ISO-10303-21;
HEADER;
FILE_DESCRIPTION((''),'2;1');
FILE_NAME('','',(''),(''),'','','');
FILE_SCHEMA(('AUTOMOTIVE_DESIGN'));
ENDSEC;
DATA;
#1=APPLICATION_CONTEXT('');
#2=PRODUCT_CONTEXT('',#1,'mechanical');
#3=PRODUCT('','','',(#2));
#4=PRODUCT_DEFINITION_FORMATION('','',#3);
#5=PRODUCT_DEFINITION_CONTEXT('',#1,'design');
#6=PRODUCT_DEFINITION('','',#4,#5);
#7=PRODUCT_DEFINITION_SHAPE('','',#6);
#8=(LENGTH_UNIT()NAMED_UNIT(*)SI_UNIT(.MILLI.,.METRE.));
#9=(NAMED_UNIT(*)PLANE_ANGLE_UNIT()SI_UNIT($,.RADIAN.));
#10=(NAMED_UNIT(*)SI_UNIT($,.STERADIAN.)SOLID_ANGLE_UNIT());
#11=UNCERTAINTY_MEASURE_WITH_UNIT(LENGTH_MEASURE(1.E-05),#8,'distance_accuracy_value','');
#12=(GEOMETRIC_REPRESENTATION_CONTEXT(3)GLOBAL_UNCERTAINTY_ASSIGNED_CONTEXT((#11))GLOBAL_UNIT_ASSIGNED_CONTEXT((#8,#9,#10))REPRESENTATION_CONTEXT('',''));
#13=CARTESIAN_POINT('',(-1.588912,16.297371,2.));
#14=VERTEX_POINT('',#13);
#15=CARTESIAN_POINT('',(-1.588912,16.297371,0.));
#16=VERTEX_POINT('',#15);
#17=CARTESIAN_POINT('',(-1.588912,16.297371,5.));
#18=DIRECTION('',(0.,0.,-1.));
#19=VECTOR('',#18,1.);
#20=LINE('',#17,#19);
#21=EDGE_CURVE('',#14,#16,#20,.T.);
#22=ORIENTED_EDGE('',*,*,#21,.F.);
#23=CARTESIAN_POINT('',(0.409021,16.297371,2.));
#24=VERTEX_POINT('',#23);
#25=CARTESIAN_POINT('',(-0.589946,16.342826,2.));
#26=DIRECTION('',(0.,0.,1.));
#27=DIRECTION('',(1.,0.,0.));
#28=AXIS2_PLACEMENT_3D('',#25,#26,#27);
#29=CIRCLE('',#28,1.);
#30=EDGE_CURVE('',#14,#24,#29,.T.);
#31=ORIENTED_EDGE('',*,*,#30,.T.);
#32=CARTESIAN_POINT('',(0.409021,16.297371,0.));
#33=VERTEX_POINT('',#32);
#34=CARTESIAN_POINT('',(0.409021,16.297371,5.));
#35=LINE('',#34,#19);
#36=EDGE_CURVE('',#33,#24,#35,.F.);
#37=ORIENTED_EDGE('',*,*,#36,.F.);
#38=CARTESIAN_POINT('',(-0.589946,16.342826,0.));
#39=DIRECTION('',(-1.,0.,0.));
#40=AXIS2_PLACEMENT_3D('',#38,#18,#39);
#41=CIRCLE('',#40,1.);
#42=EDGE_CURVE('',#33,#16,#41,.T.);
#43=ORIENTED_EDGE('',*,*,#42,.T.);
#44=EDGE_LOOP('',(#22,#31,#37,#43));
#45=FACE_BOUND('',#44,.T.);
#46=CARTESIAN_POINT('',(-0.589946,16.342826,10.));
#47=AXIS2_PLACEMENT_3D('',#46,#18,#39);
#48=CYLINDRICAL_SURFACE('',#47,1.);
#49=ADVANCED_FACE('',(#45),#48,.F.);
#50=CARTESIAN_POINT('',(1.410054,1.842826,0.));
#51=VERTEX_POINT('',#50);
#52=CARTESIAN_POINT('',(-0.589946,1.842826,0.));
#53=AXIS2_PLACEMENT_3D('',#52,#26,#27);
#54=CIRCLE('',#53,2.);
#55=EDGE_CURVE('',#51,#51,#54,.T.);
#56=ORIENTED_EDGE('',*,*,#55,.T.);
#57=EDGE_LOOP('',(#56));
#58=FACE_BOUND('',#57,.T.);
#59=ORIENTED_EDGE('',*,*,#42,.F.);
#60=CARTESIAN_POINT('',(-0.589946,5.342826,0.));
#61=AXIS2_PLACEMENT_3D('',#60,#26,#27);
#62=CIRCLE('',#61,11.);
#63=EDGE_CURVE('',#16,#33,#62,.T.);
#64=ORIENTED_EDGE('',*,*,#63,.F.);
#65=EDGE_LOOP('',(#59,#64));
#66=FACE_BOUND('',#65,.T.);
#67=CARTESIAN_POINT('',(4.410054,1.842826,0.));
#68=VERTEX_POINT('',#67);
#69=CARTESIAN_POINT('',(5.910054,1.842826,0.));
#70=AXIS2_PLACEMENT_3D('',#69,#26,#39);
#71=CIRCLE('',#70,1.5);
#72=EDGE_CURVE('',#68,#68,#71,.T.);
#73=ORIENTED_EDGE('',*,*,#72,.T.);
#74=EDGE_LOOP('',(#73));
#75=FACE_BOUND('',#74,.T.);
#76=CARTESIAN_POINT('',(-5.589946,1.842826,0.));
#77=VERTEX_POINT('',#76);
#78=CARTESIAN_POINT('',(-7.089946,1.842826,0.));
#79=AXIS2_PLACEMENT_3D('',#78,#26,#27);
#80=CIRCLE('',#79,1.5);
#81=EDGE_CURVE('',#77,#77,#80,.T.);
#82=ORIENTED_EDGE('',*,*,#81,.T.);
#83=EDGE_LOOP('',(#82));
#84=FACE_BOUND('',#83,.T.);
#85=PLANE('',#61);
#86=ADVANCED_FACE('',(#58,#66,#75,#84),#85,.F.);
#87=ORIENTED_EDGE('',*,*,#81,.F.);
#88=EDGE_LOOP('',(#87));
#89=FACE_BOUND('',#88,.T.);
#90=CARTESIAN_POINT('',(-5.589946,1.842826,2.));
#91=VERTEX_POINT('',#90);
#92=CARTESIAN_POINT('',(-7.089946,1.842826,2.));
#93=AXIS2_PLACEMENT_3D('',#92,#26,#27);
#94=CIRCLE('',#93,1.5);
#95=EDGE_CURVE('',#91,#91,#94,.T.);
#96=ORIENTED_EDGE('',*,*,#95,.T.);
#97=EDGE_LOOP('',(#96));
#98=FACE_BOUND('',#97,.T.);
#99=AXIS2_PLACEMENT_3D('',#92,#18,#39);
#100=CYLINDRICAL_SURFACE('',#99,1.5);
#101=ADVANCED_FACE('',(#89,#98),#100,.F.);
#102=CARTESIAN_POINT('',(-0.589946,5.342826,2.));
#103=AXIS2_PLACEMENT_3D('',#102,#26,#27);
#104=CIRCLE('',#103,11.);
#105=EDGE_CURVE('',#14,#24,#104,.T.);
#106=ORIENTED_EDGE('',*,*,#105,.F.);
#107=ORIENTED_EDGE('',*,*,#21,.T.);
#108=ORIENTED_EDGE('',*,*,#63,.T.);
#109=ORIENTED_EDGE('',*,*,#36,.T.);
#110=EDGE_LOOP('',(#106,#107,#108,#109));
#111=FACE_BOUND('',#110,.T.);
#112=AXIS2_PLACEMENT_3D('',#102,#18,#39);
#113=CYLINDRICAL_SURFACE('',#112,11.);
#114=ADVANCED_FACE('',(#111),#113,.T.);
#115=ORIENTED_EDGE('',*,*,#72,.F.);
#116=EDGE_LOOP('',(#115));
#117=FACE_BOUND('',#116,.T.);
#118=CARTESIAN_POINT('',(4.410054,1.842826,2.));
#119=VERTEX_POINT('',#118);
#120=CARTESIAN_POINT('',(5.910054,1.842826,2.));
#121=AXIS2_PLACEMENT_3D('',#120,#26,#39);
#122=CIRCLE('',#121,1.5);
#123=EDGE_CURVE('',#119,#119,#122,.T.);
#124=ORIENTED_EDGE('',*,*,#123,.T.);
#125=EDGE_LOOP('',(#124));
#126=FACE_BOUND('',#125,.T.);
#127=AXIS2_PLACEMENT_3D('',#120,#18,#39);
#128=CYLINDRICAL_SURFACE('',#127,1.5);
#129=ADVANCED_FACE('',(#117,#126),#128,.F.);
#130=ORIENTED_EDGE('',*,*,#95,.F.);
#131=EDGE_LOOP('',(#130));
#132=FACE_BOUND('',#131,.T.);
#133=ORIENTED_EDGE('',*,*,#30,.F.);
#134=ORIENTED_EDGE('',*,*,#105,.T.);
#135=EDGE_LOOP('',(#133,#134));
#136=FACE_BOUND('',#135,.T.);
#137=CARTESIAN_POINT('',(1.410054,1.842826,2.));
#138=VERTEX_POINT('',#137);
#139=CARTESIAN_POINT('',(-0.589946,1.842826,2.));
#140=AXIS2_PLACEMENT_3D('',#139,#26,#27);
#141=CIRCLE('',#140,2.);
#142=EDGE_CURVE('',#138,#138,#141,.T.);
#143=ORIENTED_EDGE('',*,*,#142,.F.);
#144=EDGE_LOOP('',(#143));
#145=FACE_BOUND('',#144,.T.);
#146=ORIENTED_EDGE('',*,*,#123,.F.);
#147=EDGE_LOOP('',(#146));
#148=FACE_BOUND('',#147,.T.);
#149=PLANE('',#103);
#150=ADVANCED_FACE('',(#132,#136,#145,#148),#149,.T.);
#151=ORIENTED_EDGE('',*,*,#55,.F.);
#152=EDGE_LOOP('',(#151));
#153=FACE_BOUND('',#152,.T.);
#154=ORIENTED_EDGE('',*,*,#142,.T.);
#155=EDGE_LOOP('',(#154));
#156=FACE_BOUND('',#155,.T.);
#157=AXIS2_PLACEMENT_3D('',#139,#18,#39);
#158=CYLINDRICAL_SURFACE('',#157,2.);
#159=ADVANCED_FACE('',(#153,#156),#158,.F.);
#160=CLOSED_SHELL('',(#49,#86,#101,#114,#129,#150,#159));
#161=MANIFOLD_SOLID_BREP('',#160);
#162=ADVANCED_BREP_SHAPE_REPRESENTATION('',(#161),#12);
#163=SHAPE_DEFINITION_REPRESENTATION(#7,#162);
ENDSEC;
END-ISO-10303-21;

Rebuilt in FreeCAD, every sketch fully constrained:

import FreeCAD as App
import Part
import Sketcher

V = App.Vector
Q = App.Units.Quantity

doc = App.newDocument("Part")
body = doc.addObject("PartDesign::Body", "Body")

# Sketch on XY plane
sketch1 = body.newObject("Sketcher::SketchObject", "Sketch")
sketch1.AttachmentSupport = (doc.getObject("XY_Plane"), [""])
sketch1.MapMode = "FlatFace"
sketch1.addGeometry(Part.Circle(V(-0.589946, 5.342826, 0), V(0, 0, 1), 11), False)
sketch1.addGeometry(Part.Circle(V(-7.089946, 1.842826, 0), V(0, 0, 1), 1.5), False)
sketch1.addGeometry(Part.Circle(V(-0.589946, 1.842826, 0), V(0, 0, 1), 2), False)
sketch1.addGeometry(Part.Circle(V(5.910054, 1.842826, 0), V(0, 0, 1), 1.5), False)
sketch1.addConstraint(Sketcher.Constraint("Equal", 1, 3))
sketch1.addConstraint(Sketcher.Constraint("Horizontal", 1, 3, 2, 3))
sketch1.addConstraint(Sketcher.Constraint("Horizontal", 2, 3, 3, 3))
sketch1.addConstraint(Sketcher.Constraint("Vertical", 0, 3, 2, 3))
sketch1.addConstraint(Sketcher.Constraint("Diameter", 0, Q("22 mm")))
sketch1.addConstraint(Sketcher.Constraint("Diameter", 1, Q("3 mm")))
sketch1.addConstraint(Sketcher.Constraint("Diameter", 2, Q("4 mm")))
sketch1.addConstraint(Sketcher.Constraint("DistanceX", 1, 3, 3, 3, Q("13 mm")))
sketch1.addConstraint(Sketcher.Constraint("DistanceX", 1, 3, 0, 3, Q("6.5 mm")))
sketch1.addConstraint(Sketcher.Constraint("DistanceY", 1, 3, 0, 3, Q("3.5 mm")))
sketch1.addConstraint(Sketcher.Constraint("DistanceX", 0, 3, -1, 1, Q("0.589946 mm")))
sketch1.addConstraint(Sketcher.Constraint("DistanceY", -1, 1, 0, 3, Q("5.342826 mm")))
pad1 = body.newObject("PartDesign::Pad", "Pad")
pad1.Profile = sketch1
pad1.Length = 2

# Sketch on XY plane
sketch2 = body.newObject("Sketcher::SketchObject", "Sketch001")
sketch2.AttachmentSupport = (doc.getObject("XY_Plane"), [""])
sketch2.MapMode = "FlatFace"
sketch2.addGeometry(Part.Circle(V(-0.589946, 16.342826, 0), V(0, 0, 1), 1), False)
sketch2.addConstraint(Sketcher.Constraint("Diameter", 0, Q("2 mm")))
sketch2.addConstraint(Sketcher.Constraint("DistanceX", 0, 3, -1, 1, Q("0.589946 mm")))
sketch2.addConstraint(Sketcher.Constraint("DistanceY", -1, 1, 0, 3, Q("16.342826 mm")))
pocket1 = body.newObject("PartDesign::Pocket", "Pocket")
pocket1.Profile = sketch2
pocket1.Length = 10
pocket1.Reversed = True

doc.recompute()
